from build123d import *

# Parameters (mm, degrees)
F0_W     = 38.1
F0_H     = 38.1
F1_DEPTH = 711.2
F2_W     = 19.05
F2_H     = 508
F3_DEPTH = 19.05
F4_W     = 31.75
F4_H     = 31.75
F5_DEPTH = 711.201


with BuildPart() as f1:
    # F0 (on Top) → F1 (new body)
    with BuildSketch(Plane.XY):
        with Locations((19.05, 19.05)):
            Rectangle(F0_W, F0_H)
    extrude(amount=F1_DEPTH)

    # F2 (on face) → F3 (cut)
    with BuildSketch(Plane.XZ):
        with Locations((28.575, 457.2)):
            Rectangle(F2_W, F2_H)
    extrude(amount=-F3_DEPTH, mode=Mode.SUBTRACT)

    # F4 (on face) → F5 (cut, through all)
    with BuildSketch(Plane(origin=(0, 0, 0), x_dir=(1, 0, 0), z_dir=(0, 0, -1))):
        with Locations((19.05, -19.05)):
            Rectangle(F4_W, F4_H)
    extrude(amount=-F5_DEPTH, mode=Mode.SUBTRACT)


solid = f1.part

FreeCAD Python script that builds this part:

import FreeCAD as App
import Part
import Sketcher
from FreeCAD import Vector
Q = App.Units.Quantity


def add_polygon(sketch, points):
    """Adds a closed chain of lines whose ends are joined by coincident constraints."""
    first, n = sketch.GeometryCount, len(points)
    for a, b in zip(points, points[1:] + points[:1]):
        sketch.addGeometry(Part.LineSegment(App.Vector(*a, 0), App.Vector(*b, 0)), False)
    for i in range(n):
        sketch.addConstraint(Sketcher.Constraint("Coincident", first + i, 2, first + (i + 1) % n, 1))

doc = App.newDocument("Part")
body = doc.addObject("PartDesign::Body", "Body")

# Sketch on XY plane
sketch1 = doc.addObject("Sketcher::SketchObject", "Sketch")
body.addObject(sketch1)
sketch1.AttachmentSupport = (doc.XY_Plane, [""])
sketch1.MapMode = "FlatFace"
add_polygon(sketch1, [(0, 38), (0, 0), (38, 0), (38, 38)])  # lines 0-3
sketch1.addConstraint([
    Sketcher.Constraint("Vertical", 0),
    Sketcher.Constraint("Horizontal", 1),
    Sketcher.Constraint("Vertical", 2),
    Sketcher.Constraint("Horizontal", 3),
    Sketcher.Constraint("Coincident", 0, 2, -1, 1),
    Sketcher.Constraint("Equal", 3, 0),
    Sketcher.Constraint("DistanceX", 1, 1, 1, 2, Q("1.5 in")),
])
pad1 = doc.addObject("PartDesign::Pad", "Pad")
body.addObject(pad1)
pad1.Profile = sketch1
pad1.Length = Q("28 in")

# Sketch on XZ plane
sketch2 = doc.addObject("Sketcher::SketchObject", "Sketch001")
body.addObject(sketch2)
sketch2.AttachmentSupport = (doc.XZ_Plane, [""])
sketch2.MapMode = "FlatFace"
add_polygon(sketch2, [(19, 711), (19, 203), (38, 203), (38, 711)])  # lines 0-3
sketch2.addConstraint([
    Sketcher.Constraint("Vertical", 0),
    Sketcher.Constraint("Horizontal", 1),
    Sketcher.Constraint("Vertical", 2),
    Sketcher.Constraint("Horizontal", 3),
    Sketcher.Constraint("DistanceY", 0, 2, 0, 1, Q("20 in")),
    Sketcher.Constraint("DistanceY", -1, 1, 0, 2, Q("8 in")),
    Sketcher.Constraint("DistanceX", 1, 1, 1, 2, Q("0.75 in")),
    Sketcher.Constraint("DistanceX", -1, 1, 1, 2, Q("1.5 in")),
])
pocket1 = doc.addObject("PartDesign::Pocket", "Pocket")
body.addObject(pocket1)
pocket1.Profile = sketch2
pocket1.Length = Q("0.75 in")

# Sketch on XY plane
sketch3 = doc.addObject("Sketcher::SketchObject", "Sketch002")
body.addObject(sketch3)
sketch3.AttachmentSupport = (doc.XY_Plane, [""])
sketch3.MapMode = "FlatFace"
add_polygon(sketch3, [(3, 3), (3, 35), (35, 35), (35, 3)])  # lines 0-3
sketch3.addConstraint([
    Sketcher.Constraint("Vertical", 0),
    Sketcher.Constraint("Horizontal", 1),
    Sketcher.Constraint("Vertical", 2),
    Sketcher.Constraint("Horizontal", 3),
    Sketcher.Constraint("Equal", 3, 0),
    Sketcher.Constraint("DistanceX", 1, 1, 1, 2, Q("1.25 in")),
    Sketcher.Constraint("DistanceX", -1, 1, 0, 2, Q("0.125 in")),
    Sketcher.Constraint("DistanceY", -1, 1, 0, 2, Q("1.375 in")),
])
pocket2 = doc.addObject("PartDesign::Pocket", "Pocket001")
body.addObject(pocket2)
pocket2.Profile = sketch3
pocket2.Type = "ThroughAll"
pocket2.Reversed = True

doc.recompute()
